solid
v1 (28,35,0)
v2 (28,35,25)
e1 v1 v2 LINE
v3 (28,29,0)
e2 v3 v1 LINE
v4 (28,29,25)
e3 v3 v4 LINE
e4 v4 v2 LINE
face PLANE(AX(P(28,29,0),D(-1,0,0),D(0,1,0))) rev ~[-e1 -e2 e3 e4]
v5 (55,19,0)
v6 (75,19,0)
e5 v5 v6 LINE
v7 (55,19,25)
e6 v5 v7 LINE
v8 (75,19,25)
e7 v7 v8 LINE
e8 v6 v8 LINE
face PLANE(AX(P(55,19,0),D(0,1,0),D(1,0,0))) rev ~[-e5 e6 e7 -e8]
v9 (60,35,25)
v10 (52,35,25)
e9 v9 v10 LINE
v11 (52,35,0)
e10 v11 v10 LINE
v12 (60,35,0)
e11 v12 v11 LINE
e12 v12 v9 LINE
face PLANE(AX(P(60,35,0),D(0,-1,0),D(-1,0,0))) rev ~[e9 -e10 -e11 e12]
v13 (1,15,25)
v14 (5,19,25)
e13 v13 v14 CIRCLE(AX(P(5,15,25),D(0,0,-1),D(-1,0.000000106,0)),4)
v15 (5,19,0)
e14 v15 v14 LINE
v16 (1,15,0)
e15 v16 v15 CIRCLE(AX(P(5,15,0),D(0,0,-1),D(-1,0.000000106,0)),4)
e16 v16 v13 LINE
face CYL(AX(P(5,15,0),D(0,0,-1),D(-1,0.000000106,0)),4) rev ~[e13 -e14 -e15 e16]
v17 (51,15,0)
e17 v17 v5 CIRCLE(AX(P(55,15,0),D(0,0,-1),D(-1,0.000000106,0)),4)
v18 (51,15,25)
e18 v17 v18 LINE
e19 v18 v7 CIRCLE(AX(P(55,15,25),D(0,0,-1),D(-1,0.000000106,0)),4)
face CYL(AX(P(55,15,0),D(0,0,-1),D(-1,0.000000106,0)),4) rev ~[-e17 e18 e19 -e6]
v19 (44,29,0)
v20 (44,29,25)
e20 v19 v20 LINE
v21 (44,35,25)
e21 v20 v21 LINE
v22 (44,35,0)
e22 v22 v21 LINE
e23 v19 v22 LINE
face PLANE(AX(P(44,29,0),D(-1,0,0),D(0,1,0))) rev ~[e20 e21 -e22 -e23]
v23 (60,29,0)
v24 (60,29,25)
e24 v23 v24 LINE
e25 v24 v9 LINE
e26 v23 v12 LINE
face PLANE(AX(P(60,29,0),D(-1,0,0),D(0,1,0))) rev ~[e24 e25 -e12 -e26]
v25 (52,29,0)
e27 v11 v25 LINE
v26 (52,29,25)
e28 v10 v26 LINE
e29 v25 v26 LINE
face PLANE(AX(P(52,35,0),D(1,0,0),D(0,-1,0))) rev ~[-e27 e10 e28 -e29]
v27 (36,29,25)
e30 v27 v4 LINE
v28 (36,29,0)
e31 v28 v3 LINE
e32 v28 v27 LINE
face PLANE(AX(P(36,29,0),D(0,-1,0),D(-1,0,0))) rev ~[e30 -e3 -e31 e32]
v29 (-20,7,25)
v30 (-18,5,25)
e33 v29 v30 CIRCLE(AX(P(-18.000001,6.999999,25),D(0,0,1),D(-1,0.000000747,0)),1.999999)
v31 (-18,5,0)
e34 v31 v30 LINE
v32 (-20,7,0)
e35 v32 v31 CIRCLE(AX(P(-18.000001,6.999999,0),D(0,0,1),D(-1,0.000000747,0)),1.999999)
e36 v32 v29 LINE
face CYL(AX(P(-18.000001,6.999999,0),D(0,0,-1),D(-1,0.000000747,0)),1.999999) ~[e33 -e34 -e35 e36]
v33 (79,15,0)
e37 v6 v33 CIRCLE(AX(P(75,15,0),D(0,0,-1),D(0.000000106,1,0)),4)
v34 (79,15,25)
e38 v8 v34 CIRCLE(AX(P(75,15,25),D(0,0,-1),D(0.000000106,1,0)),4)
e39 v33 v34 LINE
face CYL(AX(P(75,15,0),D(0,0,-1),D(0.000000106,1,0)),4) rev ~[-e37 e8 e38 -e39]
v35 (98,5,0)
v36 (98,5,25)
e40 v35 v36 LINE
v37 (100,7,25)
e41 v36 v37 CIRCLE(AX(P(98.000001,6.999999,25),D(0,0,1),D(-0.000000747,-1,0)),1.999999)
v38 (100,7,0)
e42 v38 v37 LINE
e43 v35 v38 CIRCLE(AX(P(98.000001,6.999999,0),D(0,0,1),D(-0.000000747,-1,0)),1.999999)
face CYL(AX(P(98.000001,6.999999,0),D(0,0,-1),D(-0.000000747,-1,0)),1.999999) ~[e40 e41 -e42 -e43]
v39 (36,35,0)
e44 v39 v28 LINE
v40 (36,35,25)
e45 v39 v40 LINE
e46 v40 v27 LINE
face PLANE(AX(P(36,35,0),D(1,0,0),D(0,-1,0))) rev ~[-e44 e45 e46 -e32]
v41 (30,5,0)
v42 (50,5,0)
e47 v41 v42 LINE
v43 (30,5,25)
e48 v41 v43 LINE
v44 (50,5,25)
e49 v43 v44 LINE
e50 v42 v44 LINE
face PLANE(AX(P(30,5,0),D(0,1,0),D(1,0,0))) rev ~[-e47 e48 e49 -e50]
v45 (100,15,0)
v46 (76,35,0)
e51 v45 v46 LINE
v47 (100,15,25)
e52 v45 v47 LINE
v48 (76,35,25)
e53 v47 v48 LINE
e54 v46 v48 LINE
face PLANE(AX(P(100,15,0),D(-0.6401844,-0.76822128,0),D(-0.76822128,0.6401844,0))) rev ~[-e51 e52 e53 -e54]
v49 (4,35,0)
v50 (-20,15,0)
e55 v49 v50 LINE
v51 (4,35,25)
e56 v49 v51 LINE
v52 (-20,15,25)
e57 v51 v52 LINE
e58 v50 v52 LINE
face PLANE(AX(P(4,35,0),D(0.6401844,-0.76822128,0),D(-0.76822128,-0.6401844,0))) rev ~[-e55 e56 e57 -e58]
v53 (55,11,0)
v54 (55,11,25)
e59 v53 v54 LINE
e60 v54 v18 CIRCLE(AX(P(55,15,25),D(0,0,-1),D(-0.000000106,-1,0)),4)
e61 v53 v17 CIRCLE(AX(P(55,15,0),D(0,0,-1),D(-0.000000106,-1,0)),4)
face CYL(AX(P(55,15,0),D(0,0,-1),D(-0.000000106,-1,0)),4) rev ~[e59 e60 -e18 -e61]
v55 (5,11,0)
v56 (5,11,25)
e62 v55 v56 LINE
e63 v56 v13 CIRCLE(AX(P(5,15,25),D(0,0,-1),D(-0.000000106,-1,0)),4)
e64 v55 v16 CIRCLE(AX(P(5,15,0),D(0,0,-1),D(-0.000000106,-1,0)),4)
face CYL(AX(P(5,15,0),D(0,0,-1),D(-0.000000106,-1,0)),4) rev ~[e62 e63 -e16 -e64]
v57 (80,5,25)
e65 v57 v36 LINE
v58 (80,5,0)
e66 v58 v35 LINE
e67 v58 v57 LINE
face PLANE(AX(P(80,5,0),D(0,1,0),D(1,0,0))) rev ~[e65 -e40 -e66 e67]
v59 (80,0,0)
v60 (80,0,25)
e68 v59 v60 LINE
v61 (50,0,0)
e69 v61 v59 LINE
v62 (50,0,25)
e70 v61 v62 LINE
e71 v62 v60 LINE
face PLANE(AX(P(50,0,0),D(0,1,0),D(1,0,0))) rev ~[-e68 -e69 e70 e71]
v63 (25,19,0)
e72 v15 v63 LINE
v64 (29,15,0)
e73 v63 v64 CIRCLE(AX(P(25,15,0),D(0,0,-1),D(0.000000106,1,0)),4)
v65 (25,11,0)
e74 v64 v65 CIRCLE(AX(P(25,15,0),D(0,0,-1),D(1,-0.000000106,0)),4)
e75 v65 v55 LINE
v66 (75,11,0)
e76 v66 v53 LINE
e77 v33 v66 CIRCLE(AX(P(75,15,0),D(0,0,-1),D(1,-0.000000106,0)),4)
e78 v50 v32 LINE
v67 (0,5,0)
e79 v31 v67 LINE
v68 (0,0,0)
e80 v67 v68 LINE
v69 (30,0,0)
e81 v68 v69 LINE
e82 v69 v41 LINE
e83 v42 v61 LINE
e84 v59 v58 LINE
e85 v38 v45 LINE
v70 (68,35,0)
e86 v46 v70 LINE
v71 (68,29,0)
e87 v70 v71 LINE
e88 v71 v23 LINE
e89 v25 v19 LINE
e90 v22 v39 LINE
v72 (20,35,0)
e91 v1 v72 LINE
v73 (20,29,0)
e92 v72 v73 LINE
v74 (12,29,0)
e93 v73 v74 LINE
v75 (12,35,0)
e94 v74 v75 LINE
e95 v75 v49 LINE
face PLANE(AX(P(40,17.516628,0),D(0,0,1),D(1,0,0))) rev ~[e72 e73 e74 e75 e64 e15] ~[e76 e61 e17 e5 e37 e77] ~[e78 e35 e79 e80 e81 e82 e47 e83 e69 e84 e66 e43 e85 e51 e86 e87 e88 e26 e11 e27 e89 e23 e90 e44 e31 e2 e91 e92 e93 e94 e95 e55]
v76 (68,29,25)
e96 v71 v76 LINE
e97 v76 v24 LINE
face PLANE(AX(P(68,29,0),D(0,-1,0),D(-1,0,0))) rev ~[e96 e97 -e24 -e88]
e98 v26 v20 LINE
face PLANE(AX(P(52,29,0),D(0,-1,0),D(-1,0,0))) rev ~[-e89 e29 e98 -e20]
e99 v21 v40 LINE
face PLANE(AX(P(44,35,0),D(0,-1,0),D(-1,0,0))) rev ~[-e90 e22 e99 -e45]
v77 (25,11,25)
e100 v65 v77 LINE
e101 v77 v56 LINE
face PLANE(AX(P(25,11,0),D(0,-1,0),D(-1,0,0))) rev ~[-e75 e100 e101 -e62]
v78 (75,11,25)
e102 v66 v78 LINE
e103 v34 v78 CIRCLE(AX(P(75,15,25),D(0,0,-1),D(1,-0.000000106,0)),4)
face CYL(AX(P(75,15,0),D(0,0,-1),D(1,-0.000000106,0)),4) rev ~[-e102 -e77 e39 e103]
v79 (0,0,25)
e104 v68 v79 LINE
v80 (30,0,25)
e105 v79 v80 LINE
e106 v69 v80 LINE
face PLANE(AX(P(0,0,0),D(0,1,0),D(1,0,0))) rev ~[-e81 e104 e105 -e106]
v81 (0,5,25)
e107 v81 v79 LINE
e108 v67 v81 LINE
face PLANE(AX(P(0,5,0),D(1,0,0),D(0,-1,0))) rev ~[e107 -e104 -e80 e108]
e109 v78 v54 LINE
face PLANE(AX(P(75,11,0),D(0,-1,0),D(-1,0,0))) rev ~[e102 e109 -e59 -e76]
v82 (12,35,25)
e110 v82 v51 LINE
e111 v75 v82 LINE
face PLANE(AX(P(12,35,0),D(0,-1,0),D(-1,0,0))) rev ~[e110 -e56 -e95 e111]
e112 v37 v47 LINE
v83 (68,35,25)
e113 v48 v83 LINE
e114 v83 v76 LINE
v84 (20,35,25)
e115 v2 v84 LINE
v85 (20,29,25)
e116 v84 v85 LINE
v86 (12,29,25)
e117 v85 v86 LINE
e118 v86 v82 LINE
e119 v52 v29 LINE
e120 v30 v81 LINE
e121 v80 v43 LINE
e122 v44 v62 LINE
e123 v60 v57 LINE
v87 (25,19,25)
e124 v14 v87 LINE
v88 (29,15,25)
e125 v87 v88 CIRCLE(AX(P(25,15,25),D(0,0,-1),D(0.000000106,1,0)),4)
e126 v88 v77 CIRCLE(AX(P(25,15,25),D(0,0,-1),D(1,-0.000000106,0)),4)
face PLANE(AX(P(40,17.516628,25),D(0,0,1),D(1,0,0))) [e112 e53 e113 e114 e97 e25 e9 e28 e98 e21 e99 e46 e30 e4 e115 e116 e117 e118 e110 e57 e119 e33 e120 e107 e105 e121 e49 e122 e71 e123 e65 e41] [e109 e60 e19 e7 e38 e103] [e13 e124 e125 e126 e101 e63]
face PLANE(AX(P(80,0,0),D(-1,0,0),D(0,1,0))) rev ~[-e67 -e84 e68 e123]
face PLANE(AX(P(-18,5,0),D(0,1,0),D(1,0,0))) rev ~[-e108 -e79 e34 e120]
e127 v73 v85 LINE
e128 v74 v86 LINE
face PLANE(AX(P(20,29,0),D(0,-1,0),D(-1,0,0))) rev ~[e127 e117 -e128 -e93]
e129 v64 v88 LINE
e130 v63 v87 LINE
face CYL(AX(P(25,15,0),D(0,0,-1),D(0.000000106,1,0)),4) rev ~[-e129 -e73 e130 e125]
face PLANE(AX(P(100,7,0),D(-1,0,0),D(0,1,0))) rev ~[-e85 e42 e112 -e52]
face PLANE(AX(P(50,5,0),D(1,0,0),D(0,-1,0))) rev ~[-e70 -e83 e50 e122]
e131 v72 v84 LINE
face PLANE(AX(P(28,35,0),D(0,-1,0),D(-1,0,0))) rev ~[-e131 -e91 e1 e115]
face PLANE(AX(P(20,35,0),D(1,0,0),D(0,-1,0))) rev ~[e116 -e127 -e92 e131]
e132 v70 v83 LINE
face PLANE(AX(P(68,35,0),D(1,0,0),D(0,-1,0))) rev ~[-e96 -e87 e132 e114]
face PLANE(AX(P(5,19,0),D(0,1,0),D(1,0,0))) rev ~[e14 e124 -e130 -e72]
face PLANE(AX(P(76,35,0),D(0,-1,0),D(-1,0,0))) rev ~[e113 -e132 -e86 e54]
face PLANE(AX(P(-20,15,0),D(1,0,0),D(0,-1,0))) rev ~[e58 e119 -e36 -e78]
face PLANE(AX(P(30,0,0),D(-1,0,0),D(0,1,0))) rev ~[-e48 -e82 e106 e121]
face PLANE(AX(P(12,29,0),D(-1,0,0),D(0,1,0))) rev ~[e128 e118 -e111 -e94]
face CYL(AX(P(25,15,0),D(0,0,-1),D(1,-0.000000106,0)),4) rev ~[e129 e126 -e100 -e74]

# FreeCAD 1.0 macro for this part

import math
import FreeCAD as App
import Part
import Sketcher
from FreeCAD import Vector
Q = App.Units.Quantity

doc = App.newDocument("Part")
body = doc.addObject("PartDesign::Body", "Body")

sketch1 = doc.addObject("Sketcher::SketchObject", "Sketch")
body.addObject(sketch1)
sketch1.AttachmentSupport = (doc.XY_Plane, [""])
sketch1.MapMode = "FlatFace"
sketch1.addGeometry([
    Part.LineSegment(Vector(0, 5, 0), Vector(0, 0, 0)),
    Part.LineSegment(Vector(0, 0, 0), Vector(30, 0, 0)),
    Part.LineSegment(Vector(30, 0, 0), Vector(30, 5, 0)),
    Part.LineSegment(Vector(30, 5, 0), Vector(50, 5, 0)),
    Part.LineSegment(Vector(50, 5, 0), Vector(50, 0, 0)),
    Part.LineSegment(Vector(50, 0, 0), Vector(80, 0, 0)),
    Part.LineSegment(Vector(80, 0, 0), Vector(80, 5, 0)),
    Part.LineSegment(Vector(80, 5, 0), Vector(98, 5, 0)),
    Part.ArcOfCircle(Part.Circle(Vector(98, 7, 0), Vector(0, 0, 1), 2), math.radians(-90), math.radians(0)),
    Part.LineSegment(Vector(100, 7, 0), Vector(100, 15, 0)),
    Part.LineSegment(Vector(100, 15, 0), Vector(76, 35, 0)),
    Part.LineSegment(Vector(76, 35, 0), Vector(68, 35, 0)),
    Part.LineSegment(Vector(68, 35, 0), Vector(68, 29, 0)),
    Part.LineSegment(Vector(68, 29, 0), Vector(60, 29, 0)),
    Part.LineSegment(Vector(60, 29, 0), Vector(60, 35, 0)),
    Part.LineSegment(Vector(60, 35, 0), Vector(52, 35, 0)),
    Part.LineSegment(Vector(52, 35, 0), Vector(52, 29, 0)),
    Part.LineSegment(Vector(52, 29, 0), Vector(44, 29, 0)),
    Part.LineSegment(Vector(44, 29, 0), Vector(44, 35, 0)),
    Part.LineSegment(Vector(44, 35, 0), Vector(36, 35, 0)),
    Part.LineSegment(Vector(36, 35, 0), Vector(36, 29, 0)),
    Part.LineSegment(Vector(36, 29, 0), Vector(28, 29, 0)),
    Part.LineSegment(Vector(28, 29, 0), Vector(28, 35, 0)),
    Part.LineSegment(Vector(28, 35, 0), Vector(20, 35, 0)),
    Part.LineSegment(Vector(20, 35, 0), Vector(20, 29, 0)),
    Part.LineSegment(Vector(20, 29, 0), Vector(12, 29, 0)),
    Part.LineSegment(Vector(12, 29, 0), Vector(12, 35, 0)),
    Part.LineSegment(Vector(12, 35, 0), Vector(4, 35, 0)),
    Part.LineSegment(Vector(4, 35, 0), Vector(-20, 15, 0)),
    Part.LineSegment(Vector(-20, 15, 0), Vector(-20, 7, 0)),
    Part.ArcOfCircle(Part.Circle(Vector(-18, 7, 0), Vector(0, 0, 1), 2), math.radians(180), math.radians(270)),
    Part.LineSegment(Vector(-18, 5, 0), Vector(0, 5, 0)),
    Part.ArcOfCircle(Part.Circle(Vector(25, 15, 0), Vector(0, 0, 1), 4), math.radians(0), math.radians(90)),
    Part.ArcOfCircle(Part.Circle(Vector(25, 15, 0), Vector(0, 0, 1), 4), math.radians(-90), math.radians(0)),
    Part.LineSegment(Vector(25, 11, 0), Vector(5, 11, 0)),
    Part.ArcOfCircle(Part.Circle(Vector(5, 15, 0), Vector(0, 0, 1), 4), math.radians(-180), math.radians(-90)),
    Part.ArcOfCircle(Part.Circle(Vector(5, 15, 0), Vector(0, 0, 1), 4), math.radians(90), math.radians(180)),
    Part.LineSegment(Vector(5, 19, 0), Vector(25, 19, 0)),
    Part.LineSegment(Vector(75, 11, 0), Vector(55, 11, 0)),
    Part.ArcOfCircle(Part.Circle(Vector(55, 15, 0), Vector(0, 0, 1), 4), math.radians(-180), math.radians(-90)),
    Part.ArcOfCircle(Part.Circle(Vector(55, 15, 0), Vector(0, 0, 1), 4), math.radians(90), math.radians(180)),
    Part.LineSegment(Vector(55, 19, 0), Vector(75, 19, 0)),
    Part.ArcOfCircle(Part.Circle(Vector(75, 15, 0), Vector(0, 0, 1), 4), math.radians(0), math.radians(90)),
    Part.ArcOfCircle(Part.Circle(Vector(75, 15, 0), Vector(0, 0, 1), 4), math.radians(-90), math.radians(0)),
], False)
sketch1.addConstraint([
    Sketcher.Constraint("Coincident", 0, 2, 1, 1),
    Sketcher.Constraint("Coincident", 1, 2, 2, 1),
    Sketcher.Constraint("Coincident", 2, 2, 3, 1),
    Sketcher.Constraint("Coincident", 3, 2, 4, 1),
    Sketcher.Constraint("Coincident", 4, 2, 5, 1),
    Sketcher.Constraint("Coincident", 5, 2, 6, 1),
    Sketcher.Constraint("Coincident", 6, 2, 7, 1),
    Sketcher.Constraint("Tangent", 7, 2, 8, 1),
    Sketcher.Constraint("Tangent", 8, 2, 9, 1),
    Sketcher.Constraint("Coincident", 9, 2, 10, 1),
    Sketcher.Constraint("Coincident", 10, 2, 11, 1),
    Sketcher.Constraint("Coincident", 11, 2, 12, 1),
    Sketcher.Constraint("Coincident", 12, 2, 13, 1),
    Sketcher.Constraint("Coincident", 13, 2, 14, 1),
    Sketcher.Constraint("Coincident", 14, 2, 15, 1),
    Sketcher.Constraint("Coincident", 15, 2, 16, 1),
    Sketcher.Constraint("Coincident", 16, 2, 17, 1),
    Sketcher.Constraint("Coincident", 17, 2, 18, 1),
    Sketcher.Constraint("Coincident", 18, 2, 19, 1),
    Sketcher.Constraint("Coincident", 19, 2, 20, 1),
    Sketcher.Constraint("Coincident", 20, 2, 21, 1),
    Sketcher.Constraint("Coincident", 21, 2, 22, 1),
    Sketcher.Constraint("Coincident", 22, 2, 23, 1),
    Sketcher.Constraint("Coincident", 23, 2, 24, 1),
    Sketcher.Constraint("Coincident", 24, 2, 25, 1),
    Sketcher.Constraint("Coincident", 25, 2, 26, 1),
    Sketcher.Constraint("Coincident", 26, 2, 27, 1),
    Sketcher.Constraint("Coincident", 27, 2, 28, 1),
    Sketcher.Constraint("Coincident", 28, 2, 29, 1),
    Sketcher.Constraint("Tangent", 29, 2, 30, 1),
    Sketcher.Constraint("Tangent", 30, 2, 31, 1),
    Sketcher.Constraint("Coincident", 31, 2, 0, 1),
    Sketcher.Constraint("Tangent", 32, 1, 33, 2),
    Sketcher.Constraint("Tangent", 33, 1, 34, 1),
    Sketcher.Constraint("Tangent", 34, 2, 35, 2),
    Sketcher.Constraint("Tangent", 35, 1, 36, 2),
    Sketcher.Constraint("Tangent", 36, 1, 37, 1),
    Sketcher.Constraint("Tangent", 37, 2, 32, 2),
    Sketcher.Constraint("Tangent", 38, 2, 39, 2),
    Sketcher.Constraint("Tangent", 39, 1, 40, 2),
    Sketcher.Constraint("Tangent", 40, 1, 41, 1),
    Sketcher.Constraint("Tangent", 41, 2, 42, 2),
    Sketcher.Constraint("Tangent", 42, 1, 43, 2),
    Sketcher.Constraint("Tangent", 43, 1, 38, 1),
    Sketcher.Constraint("Vertical", 0),
    Sketcher.Constraint("Horizontal", 1),
    Sketcher.Constraint("Vertical", 2),
    Sketcher.Constraint("Horizontal", 3),
    Sketcher.Constraint("Vertical", 4),
    Sketcher.Constraint("Horizontal", 5),
    Sketcher.Constraint("Vertical", 6),
    Sketcher.Constraint("Horizontal", 7),
    Sketcher.Constraint("Vertical", 9),
    Sketcher.Constraint("Horizontal", 11),
    Sketcher.Constraint("Vertical", 12),
    Sketcher.Constraint("Horizontal", 13),
    Sketcher.Constraint("Vertical", 14),
    Sketcher.Constraint("Horizontal", 15),
    Sketcher.Constraint("Vertical", 16),
    Sketcher.Constraint("Horizontal", 17),
    Sketcher.Constraint("Vertical", 18),
    Sketcher.Constraint("Horizontal", 19),
    Sketcher.Constraint("Vertical", 20),
    Sketcher.Constraint("Horizontal", 21),
    Sketcher.Constraint("Vertical", 22),
    Sketcher.Constraint("Horizontal", 23),
    Sketcher.Constraint("Vertical", 24),
    Sketcher.Constraint("Horizontal", 25),
    Sketcher.Constraint("Vertical", 26),
    Sketcher.Constraint("Horizontal", 27),
    Sketcher.Constraint("Vertical", 29),
    Sketcher.Constraint("Horizontal", 31),
    Sketcher.Constraint("Horizontal", 34),
    Sketcher.Constraint("Horizontal", 37),
    Sketcher.Constraint("Horizontal", 38),
    Sketcher.Constraint("Horizontal", 41),
    Sketcher.Constraint("Coincident", 0, 2, -1, 1),
    Sketcher.Constraint("Equal", 8, 30),
    Sketcher.Constraint("Equal", 32, 33),
    Sketcher.Constraint("Equal", 33, 35),
    Sketcher.Constraint("Equal", 36, 39),
    Sketcher.Constraint("Equal", 39, 40),
    Sketcher.Constraint("Equal", 40, 42),
    Sketcher.Constraint("PointOnObject", 4, 2, -1),
    Sketcher.Constraint("Horizontal", 8, 3, 30, 3),
    Sketcher.Constraint("Horizontal", 36, 3, 39, 3),
    Sketcher.Constraint("Horizontal", 3, 2, 6, 2),
    Sketcher.Constraint("Horizontal", 43, 3, 9, 2),
    Sketcher.Constraint("Horizontal", 11, 2, 14, 2),
    Sketcher.Constraint("Horizontal", 13, 2, 16, 2),
    Sketcher.Constraint("Horizontal", 15, 2, 18, 2),
    Sketcher.Constraint("Horizontal", 17, 2, 20, 2),
    Sketcher.Constraint("Horizontal", 19, 2, 22, 2),
    Sketcher.Constraint("Horizontal", 21, 2, 24, 2),
    Sketcher.Constraint("Horizontal", 23, 2, 26, 2),
    Sketcher.Constraint("Horizontal", 9, 2, 28, 2),
    Sketcher.Constraint("Horizontal", 28, 2, 32, 1),
    Sketcher.Constraint("Horizontal", 32, 1, 35, 1),
    Sketcher.Constraint("Horizontal", 35, 1, 39, 1),
    Sketcher.Constraint("Horizontal", 39, 1, 42, 1),
    Sketcher.Constraint("Equal", 1, 5),
    Sketcher.Constraint("Equal", 11, 13),
    Sketcher.Constraint("Equal", 13, 15),
    Sketcher.Constraint("Equal", 15, 17),
    Sketcher.Constraint("Equal", 17, 19),
    Sketcher.Constraint("Equal", 19, 21),
    Sketcher.Constraint("Equal", 21, 23),
    Sketcher.Constraint("Equal", 23, 25),
    Sketcher.Constraint("Equal", 25, 27),
    Sketcher.Constraint("Equal", 7, 31),
    Sketcher.Constraint("Equal", 3, 34),
    Sketcher.Constraint("Equal", 37, 38),
    Sketcher.Constraint("Equal", 27, 9),
    Sketcher.Constraint("Equal", 10, 28),
    Sketcher.Constraint("Radius", 8, Q("1.999999 mm")),
    Sketcher.Constraint("Radius", 32, Q("4 mm")),
    Sketcher.Constraint("DistanceX", 1, 1, 1, 2, Q("30 mm")),
    Sketcher.Constraint("DistanceX", 3, 1, 3, 2, Q("20 mm")),
    Sketcher.Constraint("DistanceX", 7, 1, 7, 2, Q("18 mm")),
    Sketcher.Constraint("DistanceX", 11, 2, 11, 1, Q("8 mm")),
    Sketcher.Constraint("DistanceY", 0, 2, 0, 1, Q("5 mm")),
    Sketcher.Constraint("DistanceY", 12, 2, 12, 1, Q("6 mm")),
    Sketcher.Constraint("DistanceX", -1, 1, 32, 3, Q("25 mm")),
    Sketcher.Constraint("DistanceX", -1, 1, 39, 3, Q("55 mm")),
    Sketcher.Constraint("DistanceY", -1, 1, 10, 2, Q("35 mm")),
])
pad1 = doc.addObject("PartDesign::Pad", "Pad")
body.addObject(pad1)
pad1.Profile = sketch1
pad1.Length = 25

doc.recompute()
